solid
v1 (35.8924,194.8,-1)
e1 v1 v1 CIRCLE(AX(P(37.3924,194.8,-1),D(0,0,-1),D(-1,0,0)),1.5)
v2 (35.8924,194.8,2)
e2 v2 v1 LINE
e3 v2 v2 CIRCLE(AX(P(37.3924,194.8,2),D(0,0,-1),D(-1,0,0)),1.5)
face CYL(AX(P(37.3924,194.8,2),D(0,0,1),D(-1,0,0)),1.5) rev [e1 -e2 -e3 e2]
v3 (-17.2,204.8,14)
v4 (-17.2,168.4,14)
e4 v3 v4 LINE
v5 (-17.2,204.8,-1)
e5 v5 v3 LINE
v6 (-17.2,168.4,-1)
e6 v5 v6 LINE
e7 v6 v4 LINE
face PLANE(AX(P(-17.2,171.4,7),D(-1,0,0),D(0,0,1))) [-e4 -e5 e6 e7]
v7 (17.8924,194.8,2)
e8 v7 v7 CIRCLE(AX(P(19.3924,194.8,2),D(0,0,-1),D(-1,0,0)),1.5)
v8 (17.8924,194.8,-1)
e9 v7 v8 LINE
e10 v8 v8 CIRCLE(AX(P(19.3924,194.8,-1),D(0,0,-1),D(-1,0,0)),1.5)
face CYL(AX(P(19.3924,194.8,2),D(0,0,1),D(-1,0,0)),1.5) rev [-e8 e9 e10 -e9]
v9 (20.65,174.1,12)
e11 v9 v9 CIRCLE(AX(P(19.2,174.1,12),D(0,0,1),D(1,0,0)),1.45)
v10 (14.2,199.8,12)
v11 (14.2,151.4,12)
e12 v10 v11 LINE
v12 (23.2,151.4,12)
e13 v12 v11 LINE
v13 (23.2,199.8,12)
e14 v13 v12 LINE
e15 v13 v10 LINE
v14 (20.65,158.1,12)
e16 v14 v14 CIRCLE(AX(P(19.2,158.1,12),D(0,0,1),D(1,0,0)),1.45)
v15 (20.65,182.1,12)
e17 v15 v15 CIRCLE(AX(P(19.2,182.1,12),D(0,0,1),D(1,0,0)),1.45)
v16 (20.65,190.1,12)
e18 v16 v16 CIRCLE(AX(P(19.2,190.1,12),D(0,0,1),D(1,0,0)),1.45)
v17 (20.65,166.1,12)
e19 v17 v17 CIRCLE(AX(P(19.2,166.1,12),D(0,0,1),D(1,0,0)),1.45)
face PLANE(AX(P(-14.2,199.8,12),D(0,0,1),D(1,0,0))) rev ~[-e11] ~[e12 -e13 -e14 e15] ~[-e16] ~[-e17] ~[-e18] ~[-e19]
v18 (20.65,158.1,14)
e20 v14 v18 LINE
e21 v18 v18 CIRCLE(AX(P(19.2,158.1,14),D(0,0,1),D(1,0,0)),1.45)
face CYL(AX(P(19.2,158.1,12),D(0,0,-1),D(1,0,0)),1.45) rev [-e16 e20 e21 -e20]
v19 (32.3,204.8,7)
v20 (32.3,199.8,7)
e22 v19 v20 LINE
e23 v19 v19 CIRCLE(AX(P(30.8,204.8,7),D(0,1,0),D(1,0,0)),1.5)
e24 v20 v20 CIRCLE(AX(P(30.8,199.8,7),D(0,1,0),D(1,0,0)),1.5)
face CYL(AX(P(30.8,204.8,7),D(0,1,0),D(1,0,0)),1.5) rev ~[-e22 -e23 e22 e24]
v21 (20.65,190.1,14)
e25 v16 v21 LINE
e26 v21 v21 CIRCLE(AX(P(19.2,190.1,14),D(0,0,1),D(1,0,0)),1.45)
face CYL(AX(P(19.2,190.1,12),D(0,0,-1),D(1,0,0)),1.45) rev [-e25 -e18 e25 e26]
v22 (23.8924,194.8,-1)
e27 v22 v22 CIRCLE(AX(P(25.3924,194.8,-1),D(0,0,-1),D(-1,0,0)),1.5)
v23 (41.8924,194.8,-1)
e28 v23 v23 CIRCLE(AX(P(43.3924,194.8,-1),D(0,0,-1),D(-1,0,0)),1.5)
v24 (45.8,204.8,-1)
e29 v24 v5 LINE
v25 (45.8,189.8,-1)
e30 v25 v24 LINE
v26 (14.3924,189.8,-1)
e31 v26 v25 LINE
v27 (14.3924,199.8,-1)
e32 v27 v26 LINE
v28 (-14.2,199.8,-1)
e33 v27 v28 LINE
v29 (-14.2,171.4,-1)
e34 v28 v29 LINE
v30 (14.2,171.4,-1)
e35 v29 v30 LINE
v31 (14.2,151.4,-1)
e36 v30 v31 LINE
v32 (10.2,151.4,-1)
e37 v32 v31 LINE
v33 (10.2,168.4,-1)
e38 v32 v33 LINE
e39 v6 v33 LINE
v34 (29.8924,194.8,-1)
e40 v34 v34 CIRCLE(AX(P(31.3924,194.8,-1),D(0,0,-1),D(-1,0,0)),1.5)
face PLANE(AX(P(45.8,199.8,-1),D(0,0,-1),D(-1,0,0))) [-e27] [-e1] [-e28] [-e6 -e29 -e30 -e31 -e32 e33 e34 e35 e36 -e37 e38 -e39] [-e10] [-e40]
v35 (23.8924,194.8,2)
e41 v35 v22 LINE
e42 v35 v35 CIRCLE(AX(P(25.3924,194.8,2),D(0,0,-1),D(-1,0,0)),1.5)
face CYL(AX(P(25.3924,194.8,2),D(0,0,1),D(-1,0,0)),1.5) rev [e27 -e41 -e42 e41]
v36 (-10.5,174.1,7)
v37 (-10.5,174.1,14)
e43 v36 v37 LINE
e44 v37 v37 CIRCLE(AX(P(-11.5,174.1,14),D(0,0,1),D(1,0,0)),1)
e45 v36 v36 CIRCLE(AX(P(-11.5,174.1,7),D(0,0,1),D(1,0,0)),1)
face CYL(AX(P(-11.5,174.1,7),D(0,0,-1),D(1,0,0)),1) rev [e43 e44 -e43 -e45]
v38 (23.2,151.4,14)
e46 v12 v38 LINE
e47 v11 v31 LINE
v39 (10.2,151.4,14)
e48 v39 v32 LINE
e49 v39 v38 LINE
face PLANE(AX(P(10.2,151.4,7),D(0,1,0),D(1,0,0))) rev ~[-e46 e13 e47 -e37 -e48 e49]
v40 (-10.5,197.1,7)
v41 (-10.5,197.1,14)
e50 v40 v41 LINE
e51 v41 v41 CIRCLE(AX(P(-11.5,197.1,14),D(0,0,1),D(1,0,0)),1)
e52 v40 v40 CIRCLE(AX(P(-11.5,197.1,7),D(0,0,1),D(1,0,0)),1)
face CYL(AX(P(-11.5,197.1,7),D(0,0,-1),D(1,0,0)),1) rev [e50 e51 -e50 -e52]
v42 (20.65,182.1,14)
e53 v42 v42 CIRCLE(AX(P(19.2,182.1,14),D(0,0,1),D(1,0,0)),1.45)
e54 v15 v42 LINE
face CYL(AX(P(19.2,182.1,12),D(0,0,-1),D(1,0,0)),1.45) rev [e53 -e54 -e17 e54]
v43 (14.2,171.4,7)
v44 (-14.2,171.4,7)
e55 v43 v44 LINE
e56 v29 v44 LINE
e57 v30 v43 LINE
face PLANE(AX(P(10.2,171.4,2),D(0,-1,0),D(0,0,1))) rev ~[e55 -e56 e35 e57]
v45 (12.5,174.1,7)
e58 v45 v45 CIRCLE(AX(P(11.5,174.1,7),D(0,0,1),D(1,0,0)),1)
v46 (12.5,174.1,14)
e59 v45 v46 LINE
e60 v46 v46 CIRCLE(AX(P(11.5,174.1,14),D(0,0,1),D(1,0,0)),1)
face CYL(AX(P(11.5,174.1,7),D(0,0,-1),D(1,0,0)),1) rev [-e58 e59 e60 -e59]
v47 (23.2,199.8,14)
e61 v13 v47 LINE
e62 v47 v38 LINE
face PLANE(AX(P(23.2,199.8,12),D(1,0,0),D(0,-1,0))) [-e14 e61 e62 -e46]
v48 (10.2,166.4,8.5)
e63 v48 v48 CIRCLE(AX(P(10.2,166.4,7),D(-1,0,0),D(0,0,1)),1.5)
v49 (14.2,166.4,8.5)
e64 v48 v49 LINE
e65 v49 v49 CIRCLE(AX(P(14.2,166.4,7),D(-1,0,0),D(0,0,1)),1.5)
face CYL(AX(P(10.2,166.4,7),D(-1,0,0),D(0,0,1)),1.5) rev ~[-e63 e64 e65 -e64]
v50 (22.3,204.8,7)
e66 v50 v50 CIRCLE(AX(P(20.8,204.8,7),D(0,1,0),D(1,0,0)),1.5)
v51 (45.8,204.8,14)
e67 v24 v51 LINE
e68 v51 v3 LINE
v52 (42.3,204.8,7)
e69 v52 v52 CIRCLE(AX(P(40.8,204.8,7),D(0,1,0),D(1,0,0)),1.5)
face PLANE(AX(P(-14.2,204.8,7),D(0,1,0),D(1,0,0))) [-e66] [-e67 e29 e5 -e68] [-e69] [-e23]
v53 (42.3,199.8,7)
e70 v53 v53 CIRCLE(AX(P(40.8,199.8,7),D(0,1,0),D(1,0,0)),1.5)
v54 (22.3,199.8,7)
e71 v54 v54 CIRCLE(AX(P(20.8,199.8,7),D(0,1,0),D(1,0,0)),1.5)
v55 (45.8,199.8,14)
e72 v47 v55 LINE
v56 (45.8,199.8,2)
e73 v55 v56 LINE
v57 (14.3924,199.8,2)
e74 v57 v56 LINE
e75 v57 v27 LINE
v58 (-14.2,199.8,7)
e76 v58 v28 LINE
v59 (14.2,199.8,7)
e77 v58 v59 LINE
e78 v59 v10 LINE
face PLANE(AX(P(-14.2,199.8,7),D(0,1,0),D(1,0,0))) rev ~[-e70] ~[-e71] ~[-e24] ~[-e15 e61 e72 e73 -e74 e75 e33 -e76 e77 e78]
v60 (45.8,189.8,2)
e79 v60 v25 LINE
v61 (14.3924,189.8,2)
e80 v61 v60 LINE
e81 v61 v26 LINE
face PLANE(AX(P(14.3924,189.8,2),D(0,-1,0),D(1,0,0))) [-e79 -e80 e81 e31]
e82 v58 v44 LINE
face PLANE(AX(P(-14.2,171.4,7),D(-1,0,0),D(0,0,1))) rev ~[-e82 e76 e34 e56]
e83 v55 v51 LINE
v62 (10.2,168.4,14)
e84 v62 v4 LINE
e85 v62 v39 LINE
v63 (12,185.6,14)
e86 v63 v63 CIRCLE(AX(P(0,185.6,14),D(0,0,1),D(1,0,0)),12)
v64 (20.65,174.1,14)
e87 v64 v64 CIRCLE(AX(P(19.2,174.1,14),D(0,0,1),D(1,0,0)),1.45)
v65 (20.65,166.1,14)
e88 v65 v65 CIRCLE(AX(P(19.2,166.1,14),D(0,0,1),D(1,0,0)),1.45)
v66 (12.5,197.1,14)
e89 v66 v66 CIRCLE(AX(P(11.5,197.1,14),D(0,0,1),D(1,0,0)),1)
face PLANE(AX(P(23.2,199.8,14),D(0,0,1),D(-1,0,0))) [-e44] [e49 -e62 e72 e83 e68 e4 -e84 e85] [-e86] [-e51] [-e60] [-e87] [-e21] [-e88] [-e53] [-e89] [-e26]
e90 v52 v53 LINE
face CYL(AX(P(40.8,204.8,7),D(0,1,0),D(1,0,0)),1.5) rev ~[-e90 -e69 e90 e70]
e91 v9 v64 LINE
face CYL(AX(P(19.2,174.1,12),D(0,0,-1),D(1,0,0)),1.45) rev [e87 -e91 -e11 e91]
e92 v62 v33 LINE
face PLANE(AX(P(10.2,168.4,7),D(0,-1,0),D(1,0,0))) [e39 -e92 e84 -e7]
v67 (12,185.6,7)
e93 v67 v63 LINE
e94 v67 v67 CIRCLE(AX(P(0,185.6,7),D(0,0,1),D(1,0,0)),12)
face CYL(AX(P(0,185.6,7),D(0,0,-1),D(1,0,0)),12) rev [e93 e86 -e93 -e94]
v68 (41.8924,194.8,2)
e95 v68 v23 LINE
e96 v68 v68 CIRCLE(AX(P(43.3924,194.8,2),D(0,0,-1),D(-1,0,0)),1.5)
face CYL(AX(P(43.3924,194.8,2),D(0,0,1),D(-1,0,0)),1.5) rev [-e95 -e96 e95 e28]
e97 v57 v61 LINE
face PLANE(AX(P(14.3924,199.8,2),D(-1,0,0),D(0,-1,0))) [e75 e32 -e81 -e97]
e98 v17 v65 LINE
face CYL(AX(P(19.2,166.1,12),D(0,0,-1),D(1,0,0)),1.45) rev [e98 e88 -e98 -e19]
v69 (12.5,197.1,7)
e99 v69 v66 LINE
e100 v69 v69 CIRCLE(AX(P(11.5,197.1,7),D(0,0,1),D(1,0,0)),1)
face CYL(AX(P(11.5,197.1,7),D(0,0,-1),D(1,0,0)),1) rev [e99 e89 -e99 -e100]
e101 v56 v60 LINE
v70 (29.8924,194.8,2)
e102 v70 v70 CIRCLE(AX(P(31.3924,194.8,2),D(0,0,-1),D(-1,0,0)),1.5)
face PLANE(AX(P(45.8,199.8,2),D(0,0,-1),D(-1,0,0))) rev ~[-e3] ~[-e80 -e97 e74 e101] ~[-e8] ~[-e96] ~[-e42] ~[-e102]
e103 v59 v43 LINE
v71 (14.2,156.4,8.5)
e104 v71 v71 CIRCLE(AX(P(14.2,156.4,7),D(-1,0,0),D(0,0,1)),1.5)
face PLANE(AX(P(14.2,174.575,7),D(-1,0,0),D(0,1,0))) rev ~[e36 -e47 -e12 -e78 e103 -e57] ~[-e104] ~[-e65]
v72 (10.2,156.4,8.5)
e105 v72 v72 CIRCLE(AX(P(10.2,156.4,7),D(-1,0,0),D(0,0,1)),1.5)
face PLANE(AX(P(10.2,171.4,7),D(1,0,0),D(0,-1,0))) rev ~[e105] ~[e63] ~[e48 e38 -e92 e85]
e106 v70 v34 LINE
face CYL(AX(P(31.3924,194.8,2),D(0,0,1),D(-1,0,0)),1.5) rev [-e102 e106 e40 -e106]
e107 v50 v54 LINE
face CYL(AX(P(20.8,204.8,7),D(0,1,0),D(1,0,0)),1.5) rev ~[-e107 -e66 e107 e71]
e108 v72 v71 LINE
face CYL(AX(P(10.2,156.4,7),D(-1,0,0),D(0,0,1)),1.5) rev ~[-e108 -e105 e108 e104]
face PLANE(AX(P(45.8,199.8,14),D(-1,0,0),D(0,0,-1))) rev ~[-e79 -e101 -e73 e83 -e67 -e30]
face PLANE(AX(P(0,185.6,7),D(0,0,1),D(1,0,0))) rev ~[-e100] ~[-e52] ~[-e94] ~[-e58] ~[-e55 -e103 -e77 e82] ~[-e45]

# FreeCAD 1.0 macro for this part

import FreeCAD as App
import Part
import Sketcher
Q = App.Units.Quantity


def add_polygon(sketch, points):
    """Adds a closed chain of lines whose ends are joined by coincident constraints."""
    first, n = sketch.GeometryCount, len(points)
    for a, b in zip(points, points[1:] + points[:1]):
        sketch.addGeometry(Part.LineSegment(App.Vector(*a, 0), App.Vector(*b, 0)), False)
    for i in range(n):
        sketch.addConstraint(Sketcher.Constraint("Coincident", first + i, 2, first + (i + 1) % n, 1))

doc = App.newDocument("Part")
params = doc.addObject("Spreadsheet::Sheet", "Params")
for row, (alias, value) in enumerate([
    ("sketch1_diameter", "2 mm"),
    ("sketch1_width", "4 mm"),
    ("sketch1_height", "20 mm"),
    ("sketch1_diameter2", "24 mm"),
    ("sketch1_width2", "24.4 mm"),
    ("pad1_length", "5 mm"),
    ("sketch2_height", "10 mm"),
    ("sketch2_width", "20 mm"),
    ("pad2_length", "4 mm"),
    ("sketch3_diameter", "2.9 mm"),
    ("sketch3_diameter2", "2 mm"),
    ("sketch3_diameter3", "24 mm"),
    ("sketch3_width", "13 mm"),
    ("sketch3_height", "20 mm"),
    ("pad3_length", "2 mm"),
    ("sketch4_width", "60 mm"),
    ("sketch4_height", "12 mm"),
    ("pad4_length", "5 mm"),
    ("sketch5_diameter", "3 mm"),
    ("sketch6_height", "12 mm"),
    ("sketch6_width", "33.4 mm"),
    ("pad5_length", "3 mm"),
    ("sketch7_height", "12 mm"),
    ("sketch7_width", "27.4 mm"),
    ("pad6_length", "3 mm"),
    ("sketch8_diameter", "3 mm"),
    ("sketch9_diameter", "3 mm"),
    ("sketch9_height", "10 mm"),
    ("sketch9_width", "4 mm"),
    ("sketch9_width2", "63 mm"),
    ("sketch9_height2", "20 mm"),
    ("pad7_length", "3 mm"),
], start=1):
    params.set(f"A{row}", alias)
    params.set(f"B{row}", "=" + value)
    params.setAlias(f"B{row}", alias)

body = doc.addObject("PartDesign::Body", "Body")

sketch1 = doc.addObject("Sketcher::SketchObject", "Sketch")
body.addObject(sketch1)
sketch1.AttachmentSupport = (doc.XY_Plane, [""])
sketch1.MapMode = "FlatFace"
sketch1.AttachmentOffset = App.Placement(App.Vector(0, 0, 7), App.Rotation())
add_polygon(sketch1, [(-14.2, 171.4), (10.2, 171.4), (10.2, 151.4), (14.2, 151.4), (14.2, 199.8), (-14.2, 199.8)])
sketch1.addGeometry(Part.Circle(App.Vector(0, 185.6, 0), App.Vector(0, 0, 1), 12), False)
sketch1.addGeometry(Part.Circle(App.Vector(-11.5, 174.1, 0), App.Vector(0, 0, 1), 1), False)
sketch1.addGeometry(Part.Circle(App.Vector(11.5, 174.1, 0), App.Vector(0, 0, 1), 1), False)
sketch1.addGeometry(Part.Circle(App.Vector(-11.5, 197.1, 0), App.Vector(0, 0, 1), 1), False)
sketch1.addGeometry(Part.Circle(App.Vector(11.5, 197.1, 0), App.Vector(0, 0, 1), 1), False)
sketch1.addConstraint(Sketcher.Constraint("Horizontal", 0))
sketch1.addConstraint(Sketcher.Constraint("Vertical", 1))
sketch1.addConstraint(Sketcher.Constraint("Horizontal", 2))
sketch1.addConstraint(Sketcher.Constraint("Vertical", 3))
sketch1.addConstraint(Sketcher.Constraint("Horizontal", 4))
sketch1.addConstraint(Sketcher.Constraint("Vertical", 5))
sketch1.addConstraint(Sketcher.Constraint("Equal", 7, 8))
sketch1.addConstraint(Sketcher.Constraint("Equal", 8, 9))
sketch1.addConstraint(Sketcher.Constraint("Equal", 9, 10))
sketch1.addConstraint(Sketcher.Constraint("Symmetric", 7, 3, 8, 3, -2))
sketch1.addConstraint(Sketcher.Constraint("Symmetric", 9, 3, 10, 3, -2))
sketch1.addConstraint(Sketcher.Constraint("PointOnObject", 6, 3, -2))
sketch1.addConstraint(Sketcher.Constraint("Vertical", 7, 3, 9, 3))
sketch1.addConstraint(Sketcher.Constraint("Equal", 4, 5))
sketch1.addConstraint(Sketcher.Constraint("Diameter", 7, Q("2 mm")))
sketch1.addConstraint(Sketcher.Constraint("DistanceX", 2, 1, 2, 2, Q("4 mm")))
sketch1.addConstraint(Sketcher.Constraint("DistanceY", 1, 2, 1, 1, Q("20 mm")))
sketch1.addConstraint(Sketcher.Constraint("Diameter", 6, Q("24 mm")))
sketch1.addConstraint(Sketcher.Constraint("DistanceX", 0, 1, 0, 2, Q("24.4 mm")))
sketch1.addConstraint(Sketcher.Constraint("DistanceX", 7, 3, 8, 3, Q("23 mm")))
sketch1.addConstraint(Sketcher.Constraint("DistanceY", 7, 3, 9, 3, Q("23 mm")))
sketch1.addConstraint(Sketcher.Constraint("DistanceY", -1, 1, 6, 3, Q("185.6 mm")))
sketch1.addConstraint(Sketcher.Constraint("DistanceY", -1, 1, 7, 3, Q("174.1 mm")))
sketch1.addConstraint(Sketcher.Constraint("DistanceX", -1, 1, 0, 2, Q("10.2 mm")))
sketch1.addConstraint(Sketcher.Constraint("DistanceY", -1, 1, 0, 2, Q("171.4 mm")))
sketch1.setExpression("Constraints[20]", "Params.sketch1_diameter")
sketch1.setExpression("Constraints[21]", "Params.sketch1_width")
sketch1.setExpression("Constraints[22]", "Params.sketch1_height")
sketch1.setExpression("Constraints[23]", "Params.sketch1_diameter2")
sketch1.setExpression("Constraints[24]", "Params.sketch1_width2")
pad1 = doc.addObject("PartDesign::Pad", "Pad")
body.addObject(pad1)
pad1.Profile = sketch1
pad1.setExpression("Length", "Params.pad1_length")

sketch2 = doc.addObject("Sketcher::SketchObject", "Sketch001")
body.addObject(sketch2)
sketch2.AttachmentSupport = (doc.YZ_Plane, [""])
sketch2.MapMode = "FlatFace"
sketch2.AttachmentOffset = App.Placement(App.Vector(0, 0, 10.2), App.Rotation())
add_polygon(sketch2, [(151, 12), (171, 12), (171, 2), (151, 2)])
sketch2.addConstraint(Sketcher.Constraint("Horizontal", 0))
sketch2.addConstraint(Sketcher.Constraint("Vertical", 1))
sketch2.addConstraint(Sketcher.Constraint("Horizontal", 2))
sketch2.addConstraint(Sketcher.Constraint("Vertical", 3))
sketch2.addConstraint(Sketcher.Constraint("DistanceY", 1, 2, 1, 1, Q("10 mm")))
sketch2.addConstraint(Sketcher.Constraint("DistanceX", 0, 1, 0, 2, Q("20 mm")))
sketch2.addConstraint(Sketcher.Constraint("DistanceY", -1, 1, 0, 2, Q("12 mm")))
sketch2.addConstraint(Sketcher.Constraint("DistanceX", -1, 1, 0, 2, Q("171.4 mm")))
sketch2.setExpression("Constraints[8]", "Params.sketch2_height")
sketch2.setExpression("Constraints[9]", "Params.sketch2_width")
pad2 = doc.addObject("PartDesign::Pad", "Pad001")
body.addObject(pad2)
pad2.Profile = sketch2
pad2.setExpression("Length", "Params.pad2_length")

sketch3 = doc.addObject("Sketcher::SketchObject", "Sketch002")
body.addObject(sketch3)
sketch3.AttachmentSupport = (doc.XY_Plane, [""])
sketch3.MapMode = "FlatFace"
sketch3.AttachmentOffset = App.Placement(App.Vector(0, 0, 12), App.Rotation())
add_polygon(sketch3, [(23.2, 199.8), (-14.2, 199.8), (-14.2, 171.4), (10.2, 171.4), (10.2, 151.4), (23.2, 151.4)])
sketch3.addGeometry(Part.Circle(App.Vector(19.2, 174.1, 0), App.Vector(0, 0, 1), 1.4), False)
sketch3.addGeometry(Part.Circle(App.Vector(19.2, 182.1, 0), App.Vector(0, 0, 1), 1.4), False)
sketch3.addGeometry(Part.Circle(App.Vector(19.2, 190.1, 0), App.Vector(0, 0, 1), 1.4), False)
sketch3.addGeometry(Part.Circle(App.Vector(19.2, 158.1, 0), App.Vector(0, 0, 1), 1.4), False)
sketch3.addGeometry(Part.Circle(App.Vector(19.2, 166.1, 0), App.Vector(0, 0, 1), 1.4), False)
sketch3.addGeometry(Part.Circle(App.Vector(11.5, 197.1, 0), App.Vector(0, 0, 1), 1), False)
sketch3.addGeometry(Part.Circle(App.Vector(-11.5, 174.1, 0), App.Vector(0, 0, 1), 1), False)
sketch3.addGeometry(Part.Circle(App.Vector(-11.5, 197.1, 0), App.Vector(0, 0, 1), 1), False)
sketch3.addGeometry(Part.Circle(App.Vector(0, 185.6, 0), App.Vector(0, 0, 1), 12), False)
sketch3.addGeometry(Part.Circle(App.Vector(11.5, 174.1, 0), App.Vector(0, 0, 1), 1), False)
sketch3.addConstraint(Sketcher.Constraint("Horizontal", 0))
sketch3.addConstraint(Sketcher.Constraint("Vertical", 1))
sketch3.addConstraint(Sketcher.Constraint("Horizontal", 2))
sketch3.addConstraint(Sketcher.Constraint("Vertical", 3))
sketch3.addConstraint(Sketcher.Constraint("Horizontal", 4))
sketch3.addConstraint(Sketcher.Constraint("Vertical", 5))
sketch3.addConstraint(Sketcher.Constraint("Equal", 6, 7))
sketch3.addConstraint(Sketcher.Constraint("Equal", 7, 8))
sketch3.addConstraint(Sketcher.Constraint("Equal", 8, 9))
sketch3.addConstraint(Sketcher.Constraint("Equal", 9, 10))
sketch3.addConstraint(Sketcher.Constraint("Equal", 11, 12))
sketch3.addConstraint(Sketcher.Constraint("Equal", 12, 13))
sketch3.addConstraint(Sketcher.Constraint("Equal", 13, 15))
sketch3.addConstraint(Sketcher.Constraint("Symmetric", 11, 3, 13, 3, -2))
sketch3.addConstraint(Sketcher.Constraint("Symmetric", 12, 3, 15, 3, -2))
sketch3.addConstraint(Sketcher.Constraint("PointOnObject", 14, 3, -2))
sketch3.addConstraint(Sketcher.Constraint("Horizontal", 6, 3, 12, 3))
sketch3.addConstraint(Sketcher.Constraint("Vertical", 6, 3, 7, 3))
sketch3.addConstraint(Sketcher.Constraint("Vertical", 7, 3, 8, 3))
sketch3.addConstraint(Sketcher.Constraint("Vertical", 8, 3, 9, 3))
sketch3.addConstraint(Sketcher.Constraint("Vertical", 9, 3, 10, 3))
sketch3.addConstraint(Sketcher.Constraint("Vertical", 12, 3, 13, 3))
sketch3.addConstraint(Sketcher.Constraint("Diameter", 6, Q("2.9 mm")))
sketch3.addConstraint(Sketcher.Constraint("Diameter", 11, Q("2 mm")))
sketch3.addConstraint(Sketcher.Constraint("Diameter", 14, Q("24 mm")))
sketch3.addConstraint(Sketcher.Constraint("DistanceY", 6, 3, 7, 3, Q("8 mm")))
sketch3.addConstraint(Sketcher.Constraint("DistanceY", 7, 3, 8, 3, Q("8 mm")))
sketch3.addConstraint(Sketcher.Constraint("DistanceY", 10, 3, 6, 3, Q("8 mm")))
sketch3.addConstraint(Sketcher.Constraint("DistanceY", 9, 3, 10, 3, Q("8 mm")))
sketch3.addConstraint(Sketcher.Constraint("DistanceX", 2, 2, 6, 3, Q("9 mm")))
sketch3.addConstraint(Sketcher.Constraint("DistanceX", 4, 1, 4, 2, Q("13 mm")))
sketch3.addConstraint(Sketcher.Constraint("DistanceY", 3, 2, 3, 1, Q("20 mm")))
sketch3.addConstraint(Sketcher.Constraint("DistanceX", 0, 2, 0, 1, Q("37.4 mm")))
sketch3.addConstraint(Sketcher.Constraint("DistanceY", 1, 2, 1, 1, Q("28.4 mm")))
sketch3.addConstraint(Sketcher.Constraint("DistanceY", 8, 3, 11, 3, Q("7 mm")))
sketch3.addConstraint(Sketcher.Constraint("DistanceX", 12, 3, 11, 3, Q("23 mm")))
sketch3.addConstraint(Sketcher.Constraint("DistanceX", -1, 1, 6, 3, Q("19.2 mm")))
sketch3.addConstraint(Sketcher.Constraint("DistanceY", -1, 1, 6, 3, Q("174.1 mm")))
sketch3.addConstraint(Sketcher.Constraint("DistanceY", -1, 1, 14, 3, Q("185.6 mm")))
sketch3.addConstraint(Sketcher.Constraint("DistanceY", -1, 1, 0, 2, Q("199.8 mm")))
sketch3.setExpression("Constraints[28]", "Params.sketch3_diameter")
sketch3.setExpression("Constraints[29]", "Params.sketch3_diameter2")
sketch3.setExpression("Constraints[30]", "Params.sketch3_diameter3")
sketch3.setExpression("Constraints[36]", "Params.sketch3_width")
sketch3.setExpression("Constraints[37]", "Params.sketch3_height")
pad3 = doc.addObject("PartDesign::Pad", "Pad002")
body.addObject(pad3)
pad3.Profile = sketch3
pad3.setExpression("Length", "Params.pad3_length")

sketch4 = doc.addObject("Sketcher::SketchObject", "Sketch003")
body.addObject(sketch4)
sketch4.AttachmentSupport = (doc.XZ_Plane, [""])
sketch4.MapMode = "FlatFace"
sketch4.AttachmentOffset = App.Placement(App.Vector(0, 0, -199.8), App.Rotation())
add_polygon(sketch4, [(-14, 14), (46, 14), (46, 2), (-14, 2)])
sketch4.addConstraint(Sketcher.Constraint("Horizontal", 0))
sketch4.addConstraint(Sketcher.Constraint("Vertical", 1))
sketch4.addConstraint(Sketcher.Constraint("Horizontal", 2))
sketch4.addConstraint(Sketcher.Constraint("Vertical", 3))
sketch4.addConstraint(Sketcher.Constraint("DistanceX", 0, 1, 0, 2, Q("60 mm")))
sketch4.addConstraint(Sketcher.Constraint("DistanceY", 1, 2, 1, 1, Q("12 mm")))
sketch4.addConstraint(Sketcher.Constraint("DistanceY", -1, 1, 0, 2, Q("14 mm")))
sketch4.addConstraint(Sketcher.Constraint("DistanceX", -1, 1, 0, 2, Q("45.8 mm")))
sketch4.setExpression("Constraints[8]", "Params.sketch4_width")
sketch4.setExpression("Constraints[9]", "Params.sketch4_height")
pad4 = doc.addObject("PartDesign::Pad", "Pad003")
body.addObject(pad4)
pad4.Profile = sketch4
pad4.setExpression("Length", "Params.pad4_length")
pad4.Reversed = True

sketch5 = doc.addObject("Sketcher::SketchObject", "Sketch004")
body.addObject(sketch5)
sketch5.AttachmentSupport = (doc.YZ_Plane, [""])
sketch5.MapMode = "FlatFace"
sketch5.AttachmentOffset = App.Placement(App.Vector(0, 0, 10.2), App.Rotation())
sketch5.addGeometry(Part.Circle(App.Vector(166.4, 7, 0), App.Vector(0, 0, 1), 1.5), False)
sketch5.addGeometry(Part.Circle(App.Vector(156.4, 7, 0), App.Vector(0, 0, 1), 1.5), False)
sketch5.addConstraint(Sketcher.Constraint("Equal", 0, 1))
sketch5.addConstraint(Sketcher.Constraint("Horizontal", 0, 3, 1, 3))
sketch5.addConstraint(Sketcher.Constraint("Diameter", 0, Q("3 mm")))
sketch5.addConstraint(Sketcher.Constraint("DistanceY", -1, 1, 0, 3, Q("7 mm")))
sketch5.addConstraint(Sketcher.Constraint("DistanceX", 1, 3, 0, 3, Q("10 mm")))
sketch5.addConstraint(Sketcher.Constraint("DistanceX", -1, 1, 0, 3, Q("166.4 mm")))
sketch5.setExpression("Constraints[2]", "Params.sketch5_diameter")
pocket1 = doc.addObject("PartDesign::Pocket", "Pocket")
body.addObject(pocket1)
pocket1.Profile = sketch5
pocket1.Type = "ThroughAll"
pocket1.Reversed = True

sketch6 = doc.addObject("Sketcher::SketchObject", "Sketch005")
body.addObject(sketch6)
sketch6.AttachmentSupport = (doc.YZ_Plane, [""])
sketch6.MapMode = "FlatFace"
sketch6.AttachmentOffset = App.Placement(App.Vector(0, 0, -14.2), App.Rotation())
add_polygon(sketch6, [(205, 2), (171, 2), (171, 14), (205, 14)])
sketch6.addConstraint(Sketcher.Constraint("Horizontal", 0))
sketch6.addConstraint(Sketcher.Constraint("Vertical", 1))
sketch6.addConstraint(Sketcher.Constraint("Horizontal", 2))
sketch6.addConstraint(Sketcher.Constraint("Vertical", 3))
sketch6.addConstraint(Sketcher.Constraint("DistanceY", 1, 1, 1, 2, Q("12 mm")))
sketch6.addConstraint(Sketcher.Constraint("DistanceX", 0, 2, 0, 1, Q("33.4 mm")))
sketch6.addConstraint(Sketcher.Constraint("DistanceY", -1, 1, 0, 2, Q("2 mm")))
sketch6.addConstraint(Sketcher.Constraint("DistanceX", -1, 1, 0, 2, Q("171.4 mm")))
sketch6.setExpression("Constraints[8]", "Params.sketch6_height")
sketch6.setExpression("Constraints[9]", "Params.sketch6_width")
pad5 = doc.addObject("PartDesign::Pad", "Pad004")
body.addObject(pad5)
pad5.Profile = sketch6
pad5.setExpression("Length", "Params.pad5_length")
pad5.Reversed = True

sketch7 = doc.addObject("Sketcher::SketchObject", "Sketch006")
body.addObject(sketch7)
sketch7.AttachmentSupport = (doc.XZ_Plane, [""])
sketch7.MapMode = "FlatFace"
sketch7.AttachmentOffset = App.Placement(App.Vector(0, 0, -171.4), App.Rotation())
add_polygon(sketch7, [(-17, 2), (10, 2), (10, 14), (-17, 14)])
sketch7.addConstraint(Sketcher.Constraint("Horizontal", 0))
sketch7.addConstraint(Sketcher.Constraint("Vertical", 1))
sketch7.addConstraint(Sketcher.Constraint("Horizontal", 2))
sketch7.addConstraint(Sketcher.Constraint("Vertical", 3))
sketch7.addConstraint(Sketcher.Constraint("DistanceY", 1, 1, 1, 2, Q("12 mm")))
sketch7.addConstraint(Sketcher.Constraint("DistanceX", 0, 1, 0, 2, Q("27.4 mm")))
sketch7.addConstraint(Sketcher.Constraint("DistanceY", -1, 1, 0, 2, Q("2 mm")))
sketch7.addConstraint(Sketcher.Constraint("DistanceX", -1, 1, 0, 2, Q("10.2 mm")))
sketch7.setExpression("Constraints[8]", "Params.sketch7_height")
sketch7.setExpression("Constraints[9]", "Params.sketch7_width")
pad6 = doc.addObject("PartDesign::Pad", "Pad005")
body.addObject(pad6)
pad6.Profile = sketch7
pad6.setExpression("Length", "Params.pad6_length")

sketch8 = doc.addObject("Sketcher::SketchObject", "Sketch007")
body.addObject(sketch8)
sketch8.AttachmentSupport = (doc.XZ_Plane, [""])
sketch8.MapMode = "FlatFace"
sketch8.AttachmentOffset = App.Placement(App.Vector(0, 0, -204.8), App.Rotation())
sketch8.addGeometry(Part.Circle(App.Vector(40.8, 7, 0), App.Vector(0, 0, 1), 1.5), False)
sketch8.addGeometry(Part.Circle(App.Vector(30.8, 7, 0), App.Vector(0, 0, 1), 1.5), False)
sketch8.addGeometry(Part.Circle(App.Vector(20.8, 7, 0), App.Vector(0, 0, 1), 1.5), False)
sketch8.addConstraint(Sketcher.Constraint("Equal", 0, 1))
sketch8.addConstraint(Sketcher.Constraint("Equal", 1, 2))
sketch8.addConstraint(Sketcher.Constraint("Horizontal", 0, 3, 1, 3))
sketch8.addConstraint(Sketcher.Constraint("Horizontal", 1, 3, 2, 3))
sketch8.addConstraint(Sketcher.Constraint("Diameter", 0, Q("3 mm")))
sketch8.addConstraint(Sketcher.Constraint("DistanceX", 1, 3, 0, 3, Q("10 mm")))
sketch8.addConstraint(Sketcher.Constraint("DistanceX", 2, 3, 1, 3, Q("10 mm")))
sketch8.addConstraint(Sketcher.Constraint("DistanceY", -1, 1, 0, 3, Q("7 mm")))
sketch8.addConstraint(Sketcher.Constraint("DistanceX", -1, 1, 0, 3, Q("40.8 mm")))
sketch8.setExpression("Constraints[4]", "Params.sketch8_diameter")
pocket2 = doc.addObject("PartDesign::Pocket", "Pocket001")
body.addObject(pocket2)
pocket2.Profile = sketch8
pocket2.Type = "ThroughAll"
pocket2.Reversed = True

sketch9 = doc.addObject("Sketcher::SketchObject", "Sketch008")
body.addObject(sketch9)
sketch9.AttachmentSupport = (doc.XY_Plane, [""])
sketch9.MapMode = "FlatFace"
sketch9.AttachmentOffset = App.Placement(App.Vector(0, 0, 2), App.Rotation())
add_polygon(sketch9, [(45.8, 204.8), (45.8, 189.8), (14.4, 189.8), (14.4, 199.8), (-14.2, 199.8), (-14.2, 171.4), (14.2, 171.4), (14.2, 151.4), (10.2, 151.4), (10.2, 168.4), (-17.2, 168.4), (-17.2, 204.8)])
sketch9.addGeometry(Part.Circle(App.Vector(19.4, 194.8, 0), App.Vector(0, 0, 1), 1.5), False)
sketch9.addGeometry(Part.Circle(App.Vector(43.4, 194.8, 0), App.Vector(0, 0, 1), 1.5), False)
sketch9.addGeometry(Part.Circle(App.Vector(37.4, 194.8, 0), App.Vector(0, 0, 1), 1.5), False)
sketch9.addGeometry(Part.Circle(App.Vector(31.4, 194.8, 0), App.Vector(0, 0, 1), 1.5), False)
sketch9.addGeometry(Part.Circle(App.Vector(25.4, 194.8, 0), App.Vector(0, 0, 1), 1.5), False)
sketch9.addConstraint(Sketcher.Constraint("Vertical", 0))
sketch9.addConstraint(Sketcher.Constraint("Horizontal", 1))
sketch9.addConstraint(Sketcher.Constraint("Vertical", 2))
sketch9.addConstraint(Sketcher.Constraint("Horizontal", 3))
sketch9.addConstraint(Sketcher.Constraint("Vertical", 4))
sketch9.addConstraint(Sketcher.Constraint("Horizontal", 5))
sketch9.addConstraint(Sketcher.Constraint("Vertical", 6))
sketch9.addConstraint(Sketcher.Constraint("Horizontal", 7))
sketch9.addConstraint(Sketcher.Constraint("Vertical", 8))
sketch9.addConstraint(Sketcher.Constraint("Horizontal", 9))
sketch9.addConstraint(Sketcher.Constraint("Vertical", 10))
sketch9.addConstraint(Sketcher.Constraint("Horizontal", 11))
sketch9.addConstraint(Sketcher.Constraint("Equal", 12, 13))
sketch9.addConstraint(Sketcher.Constraint("Equal", 13, 14))
sketch9.addConstraint(Sketcher.Constraint("Equal", 14, 15))
sketch9.addConstraint(Sketcher.Constraint("Equal", 15, 16))
sketch9.addConstraint(Sketcher.Constraint("Horizontal", 12, 3, 13, 3))
sketch9.addConstraint(Sketcher.Constraint("Horizontal", 13, 3, 14, 3))
sketch9.addConstraint(Sketcher.Constraint("Horizontal", 14, 3, 15, 3))
sketch9.addConstraint(Sketcher.Constraint("Horizontal", 15, 3, 16, 3))
sketch9.addConstraint(Sketcher.Constraint("Equal", 5, 4))
sketch9.addConstraint(Sketcher.Constraint("Diameter", 12, Q("3 mm")))
sketch9.addConstraint(Sketcher.Constraint("DistanceY", 2, 1, 2, 2, Q("10 mm")))
sketch9.addConstraint(Sketcher.Constraint("DistanceX", 14, 3, 13, 3, Q("6 mm")))
sketch9.addConstraint(Sketcher.Constraint("DistanceX", 15, 3, 14, 3, Q("6 mm")))
sketch9.addConstraint(Sketcher.Constraint("DistanceX", 12, 3, 16, 3, Q("6 mm")))
sketch9.addConstraint(Sketcher.Constraint("DistanceX", 16, 3, 15, 3, Q("6 mm")))
sketch9.addConstraint(Sketcher.Constraint("DistanceY", 0, 2, 13, 3, Q("5 mm")))
sketch9.addConstraint(Sketcher.Constraint("DistanceX", 1, 2, 12, 3, Q("5 mm")))
sketch9.addConstraint(Sketcher.Constraint("DistanceY", 8, 2, 5, 2, Q("3 mm")))
sketch9.addConstraint(Sketcher.Constraint("DistanceX", 9, 2, 4, 2, Q("3 mm")))
sketch9.addConstraint(Sketcher.Constraint("DistanceY", 3, 2, 10, 2, Q("5 mm")))
sketch9.addConstraint(Sketcher.Constraint("DistanceX", 7, 2, 7, 1, Q("4 mm")))
sketch9.addConstraint(Sketcher.Constraint("DistanceX", 11, 1, 11, 2, Q("63 mm")))
sketch9.addConstraint(Sketcher.Constraint("DistanceY", 6, 2, 6, 1, Q("20 mm")))
sketch9.addConstraint(Sketcher.Constraint("DistanceX", 5, 1, 5, 2, Q("28.4 mm")))
sketch9.addConstraint(Sketcher.Constraint("DistanceY", -1, 1, 12, 3, Q("194.8 mm")))
sketch9.addConstraint(Sketcher.Constraint("DistanceX", -1, 1, 0, 2, Q("45.8 mm")))
sketch9.addConstraint(Sketcher.Constraint("DistanceX", 1, 2, 1, 1, Q("31.4076 mm")))
sketch9.setExpression("Constraints[33]", "Params.sketch9_diameter")
sketch9.setExpression("Constraints[34]", "Params.sketch9_height")
sketch9.setExpression("Constraints[44]", "Params.sketch9_width")
sketch9.setExpression("Constraints[45]", "Params.sketch9_width2")
sketch9.setExpression("Constraints[46]", "Params.sketch9_height2")
pad7 = doc.addObject("PartDesign::Pad", "Pad006")
body.addObject(pad7)
pad7.Profile = sketch9
pad7.setExpression("Length", "Params.pad7_length")
pad7.Reversed = True

doc.recompute()
